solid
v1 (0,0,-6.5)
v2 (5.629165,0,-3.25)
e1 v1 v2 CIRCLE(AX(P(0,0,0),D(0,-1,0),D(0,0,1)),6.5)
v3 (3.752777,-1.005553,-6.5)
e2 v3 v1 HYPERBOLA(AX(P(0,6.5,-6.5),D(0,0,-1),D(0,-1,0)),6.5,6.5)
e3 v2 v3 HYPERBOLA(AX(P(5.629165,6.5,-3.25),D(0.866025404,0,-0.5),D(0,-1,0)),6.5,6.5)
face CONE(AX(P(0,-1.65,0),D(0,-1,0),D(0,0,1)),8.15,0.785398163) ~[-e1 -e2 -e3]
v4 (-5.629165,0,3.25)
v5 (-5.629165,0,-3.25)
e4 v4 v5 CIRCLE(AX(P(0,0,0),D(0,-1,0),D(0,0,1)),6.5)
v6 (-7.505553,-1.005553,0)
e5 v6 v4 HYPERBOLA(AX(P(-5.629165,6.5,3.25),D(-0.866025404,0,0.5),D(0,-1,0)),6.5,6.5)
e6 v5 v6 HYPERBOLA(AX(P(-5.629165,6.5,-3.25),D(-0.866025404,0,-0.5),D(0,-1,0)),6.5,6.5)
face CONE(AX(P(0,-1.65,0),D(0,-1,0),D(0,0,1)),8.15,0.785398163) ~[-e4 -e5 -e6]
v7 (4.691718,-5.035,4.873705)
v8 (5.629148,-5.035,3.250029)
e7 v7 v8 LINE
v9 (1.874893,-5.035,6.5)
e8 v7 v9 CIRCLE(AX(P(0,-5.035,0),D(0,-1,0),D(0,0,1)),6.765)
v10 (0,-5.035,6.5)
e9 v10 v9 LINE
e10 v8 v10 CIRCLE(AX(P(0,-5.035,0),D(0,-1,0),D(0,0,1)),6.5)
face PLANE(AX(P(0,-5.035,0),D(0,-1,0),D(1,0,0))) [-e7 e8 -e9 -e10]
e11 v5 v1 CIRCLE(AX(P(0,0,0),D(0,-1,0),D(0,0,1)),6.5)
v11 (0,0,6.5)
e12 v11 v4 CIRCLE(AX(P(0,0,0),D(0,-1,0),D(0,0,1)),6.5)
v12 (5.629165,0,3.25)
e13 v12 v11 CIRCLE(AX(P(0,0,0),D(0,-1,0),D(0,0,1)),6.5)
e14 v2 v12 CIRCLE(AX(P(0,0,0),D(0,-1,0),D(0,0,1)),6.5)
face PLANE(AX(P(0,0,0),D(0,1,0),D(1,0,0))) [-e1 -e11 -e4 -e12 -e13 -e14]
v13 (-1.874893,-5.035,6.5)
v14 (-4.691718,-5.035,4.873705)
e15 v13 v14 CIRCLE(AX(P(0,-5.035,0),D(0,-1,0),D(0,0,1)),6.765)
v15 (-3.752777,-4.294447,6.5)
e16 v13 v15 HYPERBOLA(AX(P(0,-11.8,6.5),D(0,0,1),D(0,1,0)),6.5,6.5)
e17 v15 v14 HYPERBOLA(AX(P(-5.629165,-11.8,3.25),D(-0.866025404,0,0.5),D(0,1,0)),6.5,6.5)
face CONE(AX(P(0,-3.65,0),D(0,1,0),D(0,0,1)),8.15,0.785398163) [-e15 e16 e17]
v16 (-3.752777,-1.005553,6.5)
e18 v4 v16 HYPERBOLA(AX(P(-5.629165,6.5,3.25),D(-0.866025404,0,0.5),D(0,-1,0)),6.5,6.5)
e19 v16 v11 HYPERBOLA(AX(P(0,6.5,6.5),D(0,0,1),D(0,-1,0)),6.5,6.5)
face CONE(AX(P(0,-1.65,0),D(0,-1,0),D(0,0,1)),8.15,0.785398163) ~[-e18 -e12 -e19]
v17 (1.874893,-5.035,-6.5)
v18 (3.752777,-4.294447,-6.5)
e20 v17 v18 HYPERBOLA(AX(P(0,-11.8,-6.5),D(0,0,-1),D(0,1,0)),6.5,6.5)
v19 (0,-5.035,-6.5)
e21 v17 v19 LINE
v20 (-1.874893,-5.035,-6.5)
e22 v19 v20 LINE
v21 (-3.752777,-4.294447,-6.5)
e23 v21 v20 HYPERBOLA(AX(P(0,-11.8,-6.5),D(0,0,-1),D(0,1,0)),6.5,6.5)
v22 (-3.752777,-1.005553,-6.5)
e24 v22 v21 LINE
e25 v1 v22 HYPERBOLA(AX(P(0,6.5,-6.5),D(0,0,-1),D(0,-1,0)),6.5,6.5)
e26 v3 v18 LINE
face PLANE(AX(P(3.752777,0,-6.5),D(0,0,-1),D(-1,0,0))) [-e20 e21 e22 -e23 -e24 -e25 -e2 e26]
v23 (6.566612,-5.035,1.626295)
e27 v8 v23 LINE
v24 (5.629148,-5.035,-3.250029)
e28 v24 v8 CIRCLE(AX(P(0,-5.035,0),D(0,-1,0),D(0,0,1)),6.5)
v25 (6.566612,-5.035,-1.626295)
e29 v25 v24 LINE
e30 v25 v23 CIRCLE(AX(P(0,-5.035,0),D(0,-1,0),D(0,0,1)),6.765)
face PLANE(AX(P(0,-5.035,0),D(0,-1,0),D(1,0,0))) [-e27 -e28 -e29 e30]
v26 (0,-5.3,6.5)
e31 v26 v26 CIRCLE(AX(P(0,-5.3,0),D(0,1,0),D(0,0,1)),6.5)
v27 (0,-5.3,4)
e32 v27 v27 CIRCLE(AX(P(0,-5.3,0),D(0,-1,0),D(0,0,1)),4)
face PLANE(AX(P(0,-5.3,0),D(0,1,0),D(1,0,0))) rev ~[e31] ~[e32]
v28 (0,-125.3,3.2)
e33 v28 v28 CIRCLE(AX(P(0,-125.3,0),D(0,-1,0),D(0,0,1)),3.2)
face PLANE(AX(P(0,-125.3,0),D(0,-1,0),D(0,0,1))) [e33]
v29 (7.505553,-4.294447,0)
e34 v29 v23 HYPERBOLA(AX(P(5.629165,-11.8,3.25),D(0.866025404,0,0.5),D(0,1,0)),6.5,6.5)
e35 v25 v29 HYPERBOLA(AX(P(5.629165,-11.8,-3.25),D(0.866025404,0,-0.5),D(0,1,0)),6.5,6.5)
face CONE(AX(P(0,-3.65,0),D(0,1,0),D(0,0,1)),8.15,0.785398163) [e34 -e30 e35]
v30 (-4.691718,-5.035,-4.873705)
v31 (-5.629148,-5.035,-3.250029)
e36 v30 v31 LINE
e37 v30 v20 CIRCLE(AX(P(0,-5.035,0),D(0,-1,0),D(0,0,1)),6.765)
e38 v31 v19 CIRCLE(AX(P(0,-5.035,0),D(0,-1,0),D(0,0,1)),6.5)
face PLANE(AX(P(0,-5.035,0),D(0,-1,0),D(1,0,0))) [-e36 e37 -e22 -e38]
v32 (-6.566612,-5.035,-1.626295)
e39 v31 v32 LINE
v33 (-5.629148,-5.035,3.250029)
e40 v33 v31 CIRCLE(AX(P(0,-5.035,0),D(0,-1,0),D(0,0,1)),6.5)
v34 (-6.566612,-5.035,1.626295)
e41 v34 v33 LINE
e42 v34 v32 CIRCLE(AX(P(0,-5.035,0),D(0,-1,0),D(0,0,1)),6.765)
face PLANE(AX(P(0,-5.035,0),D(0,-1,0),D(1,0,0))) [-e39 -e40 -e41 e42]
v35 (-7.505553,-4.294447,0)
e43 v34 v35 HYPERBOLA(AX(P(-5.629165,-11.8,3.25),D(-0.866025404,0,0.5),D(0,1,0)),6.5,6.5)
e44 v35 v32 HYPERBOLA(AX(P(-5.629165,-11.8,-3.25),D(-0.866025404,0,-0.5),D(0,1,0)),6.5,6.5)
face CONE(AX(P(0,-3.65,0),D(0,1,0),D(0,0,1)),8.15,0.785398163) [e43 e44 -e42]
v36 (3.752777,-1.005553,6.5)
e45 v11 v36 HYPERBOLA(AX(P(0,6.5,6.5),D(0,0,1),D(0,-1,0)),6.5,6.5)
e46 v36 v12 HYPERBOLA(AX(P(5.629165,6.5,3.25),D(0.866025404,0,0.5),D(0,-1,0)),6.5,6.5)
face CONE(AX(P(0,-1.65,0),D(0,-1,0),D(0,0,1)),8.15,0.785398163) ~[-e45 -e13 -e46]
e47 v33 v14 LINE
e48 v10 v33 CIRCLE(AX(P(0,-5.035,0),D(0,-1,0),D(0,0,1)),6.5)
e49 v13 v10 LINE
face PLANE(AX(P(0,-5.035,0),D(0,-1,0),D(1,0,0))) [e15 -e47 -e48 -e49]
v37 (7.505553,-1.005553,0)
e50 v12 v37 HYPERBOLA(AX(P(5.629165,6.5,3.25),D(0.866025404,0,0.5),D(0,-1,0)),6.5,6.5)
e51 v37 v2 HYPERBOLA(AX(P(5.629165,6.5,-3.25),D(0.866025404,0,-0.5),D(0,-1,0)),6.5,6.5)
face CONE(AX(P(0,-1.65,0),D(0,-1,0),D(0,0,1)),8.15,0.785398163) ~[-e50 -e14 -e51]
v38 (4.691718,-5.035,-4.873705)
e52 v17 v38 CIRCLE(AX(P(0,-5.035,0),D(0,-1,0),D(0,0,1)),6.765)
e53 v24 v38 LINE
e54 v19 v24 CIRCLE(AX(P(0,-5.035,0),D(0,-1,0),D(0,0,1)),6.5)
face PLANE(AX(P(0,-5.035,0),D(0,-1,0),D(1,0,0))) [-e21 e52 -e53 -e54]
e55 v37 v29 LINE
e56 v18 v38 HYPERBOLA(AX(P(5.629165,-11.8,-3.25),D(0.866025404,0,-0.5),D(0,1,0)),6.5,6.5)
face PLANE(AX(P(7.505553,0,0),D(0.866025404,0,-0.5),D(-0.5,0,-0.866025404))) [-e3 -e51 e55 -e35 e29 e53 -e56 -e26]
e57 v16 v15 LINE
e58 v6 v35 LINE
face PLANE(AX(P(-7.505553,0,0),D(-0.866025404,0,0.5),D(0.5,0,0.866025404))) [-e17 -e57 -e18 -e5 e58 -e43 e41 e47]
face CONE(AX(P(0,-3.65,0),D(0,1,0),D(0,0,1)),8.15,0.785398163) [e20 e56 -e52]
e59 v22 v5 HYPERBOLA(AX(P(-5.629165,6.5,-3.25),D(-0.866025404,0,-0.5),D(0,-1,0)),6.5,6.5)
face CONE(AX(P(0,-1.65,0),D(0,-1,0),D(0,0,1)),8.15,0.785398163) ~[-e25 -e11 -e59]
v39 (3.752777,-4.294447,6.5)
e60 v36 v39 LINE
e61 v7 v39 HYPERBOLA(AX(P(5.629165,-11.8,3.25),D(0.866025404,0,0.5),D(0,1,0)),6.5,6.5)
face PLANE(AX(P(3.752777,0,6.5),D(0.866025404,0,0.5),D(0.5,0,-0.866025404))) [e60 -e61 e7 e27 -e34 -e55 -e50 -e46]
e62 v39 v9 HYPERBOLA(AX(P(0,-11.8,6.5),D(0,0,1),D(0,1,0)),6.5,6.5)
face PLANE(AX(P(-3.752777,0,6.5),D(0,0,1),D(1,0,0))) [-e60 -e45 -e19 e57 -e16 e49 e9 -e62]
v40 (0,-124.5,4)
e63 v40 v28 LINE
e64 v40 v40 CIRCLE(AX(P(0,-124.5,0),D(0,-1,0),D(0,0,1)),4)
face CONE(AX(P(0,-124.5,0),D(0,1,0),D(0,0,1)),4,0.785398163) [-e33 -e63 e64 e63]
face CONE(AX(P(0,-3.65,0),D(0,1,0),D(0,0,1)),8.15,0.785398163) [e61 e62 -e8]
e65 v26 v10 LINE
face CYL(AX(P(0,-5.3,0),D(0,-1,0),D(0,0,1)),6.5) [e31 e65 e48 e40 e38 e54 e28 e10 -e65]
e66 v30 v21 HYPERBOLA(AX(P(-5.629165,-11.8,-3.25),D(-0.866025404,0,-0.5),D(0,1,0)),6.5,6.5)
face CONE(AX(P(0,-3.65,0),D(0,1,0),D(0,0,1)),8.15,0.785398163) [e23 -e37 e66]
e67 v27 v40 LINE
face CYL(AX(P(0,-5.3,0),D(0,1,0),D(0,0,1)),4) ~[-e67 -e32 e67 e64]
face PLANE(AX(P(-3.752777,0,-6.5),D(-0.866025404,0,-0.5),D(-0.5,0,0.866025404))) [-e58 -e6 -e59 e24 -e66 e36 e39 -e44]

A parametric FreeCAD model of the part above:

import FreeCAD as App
import Part
import Sketcher

V = App.Vector
Q = App.Units.Quantity


def edges_at(feature, points):
    """Names of the edges that pass closest to the given points."""
    edges = feature.Shape.Edges
    near = lambda p: min(range(len(edges)), key=lambda i: edges[i].distToShape(Part.Vertex(*p))[0])
    return sorted({f"Edge{near(p) + 1}" for p in points})

doc = App.newDocument("Part")
body = doc.addObject("PartDesign::Body", "Body")

# Sketch on XZ plane
sketch1 = body.newObject("Sketcher::SketchObject", "Sketch")
sketch1.AttachmentSupport = (doc.getObject("XZ_Plane"), [""])
sketch1.MapMode = "FlatFace"
sketch1.addGeometry(Part.LineSegment(V(8, 0, 0), V(4, -6, 0)), False)
sketch1.addGeometry(Part.LineSegment(V(4, -6, 0), V(-4, -6, 0)), False)
sketch1.addGeometry(Part.LineSegment(V(-4, -6, 0), V(-8, 0, 0)), False)
sketch1.addGeometry(Part.LineSegment(V(-8, 0, 0), V(-4, 6, 0)), False)
sketch1.addGeometry(Part.LineSegment(V(-4, 6, 0), V(4, 6, 0)), False)
sketch1.addGeometry(Part.LineSegment(V(4, 6, 0), V(8, 0, 0)), False)
sketch1.addConstraint(Sketcher.Constraint("Coincident", 0, 2, 1, 1))
sketch1.addConstraint(Sketcher.Constraint("Coincident", 1, 2, 2, 1))
sketch1.addConstraint(Sketcher.Constraint("Coincident", 2, 2, 3, 1))
sketch1.addConstraint(Sketcher.Constraint("Coincident", 3, 2, 4, 1))
sketch1.addConstraint(Sketcher.Constraint("Coincident", 4, 2, 5, 1))
sketch1.addConstraint(Sketcher.Constraint("Coincident", 5, 2, 0, 1))
sketch1.addConstraint(Sketcher.Constraint("Horizontal", 1))
sketch1.addConstraint(Sketcher.Constraint("Horizontal", 4))
sketch1.addConstraint(Sketcher.Constraint("Symmetric", 0, 2, 3, 2, -1, 1))
sketch1.addConstraint(Sketcher.Constraint("Symmetric", 2, 2, 5, 2, -1, 1))
sketch1.addConstraint(Sketcher.Constraint("PointOnObject", 2, 2, -1))
sketch1.addConstraint(Sketcher.Constraint("Parallel", 2, 5))
sketch1.addConstraint(Sketcher.Constraint("Vertical", 1, 2, 3, 2))
sketch1.addConstraint(Sketcher.Constraint("Angle", 0, Q("-120 deg")))
sketch1.addConstraint(Sketcher.Constraint("DistanceY", 1, 2, 3, 2, 13.0))
sketch1.addConstraint(Sketcher.Constraint("DistanceX", 1, 2, 1, 1, 7.505554))
pad1 = body.newObject("PartDesign::Pad", "Pad")
pad1.Profile = sketch1
pad1.Length = 5.3

# Sketch on YZ plane
sketch2 = body.newObject("Sketcher::SketchObject", "Sketch001")
sketch2.AttachmentSupport = (doc.getObject("YZ_Plane"), [""])
sketch2.MapMode = "FlatFace"
sketch2.addGeometry(Part.LineSegment(V(0, 6.5, 0), V(0, 8.2, 0)), False)
sketch2.addGeometry(Part.LineSegment(V(0, 8.2, 0), V(-1.6, 8.2, 0)), False)
sketch2.addGeometry(Part.LineSegment(V(-1.6, 8.2, 0), V(0, 6.5, 0)), False)
sketch2.addGeometry(Part.LineSegment(V(-5.3, 6.5, 0), V(-3.6, 8.2, 0)), False)
sketch2.addGeometry(Part.LineSegment(V(-3.6, 8.2, 0), V(-5.3, 8.2, 0)), False)
sketch2.addGeometry(Part.LineSegment(V(-5.3, 8.2, 0), V(-5.3, 6.5, 0)), False)
sketch2.addConstraint(Sketcher.Constraint("Coincident", 0, 2, 1, 1))
sketch2.addConstraint(Sketcher.Constraint("Coincident", 1, 2, 2, 1))
sketch2.addConstraint(Sketcher.Constraint("Coincident", 2, 2, 0, 1))
sketch2.addConstraint(Sketcher.Constraint("Coincident", 3, 2, 4, 1))
sketch2.addConstraint(Sketcher.Constraint("Coincident", 4, 2, 5, 1))
sketch2.addConstraint(Sketcher.Constraint("Coincident", 5, 2, 3, 1))
sketch2.addConstraint(Sketcher.Constraint("Vertical", 0))
sketch2.addConstraint(Sketcher.Constraint("Horizontal", 1))
sketch2.addConstraint(Sketcher.Constraint("Horizontal", 4))
sketch2.addConstraint(Sketcher.Constraint("Vertical", 5))
sketch2.addConstraint(Sketcher.Constraint("PointOnObject", 0, 2, -2))
sketch2.addConstraint(Sketcher.Constraint("Perpendicular", 2, 3))
sketch2.addConstraint(Sketcher.Constraint("Horizontal", 1, 2, 3, 2))
sketch2.addConstraint(Sketcher.Constraint("Horizontal", 2, 2, 5, 2))
sketch2.addConstraint(Sketcher.Constraint("Equal", 1, 4))
sketch2.addConstraint(Sketcher.Constraint("DistanceX", 3, 2, 1, 2, 2.0))
sketch2.addConstraint(Sketcher.Constraint("DistanceX", 1, 2, 1, 1, 1.65))
sketch2.addConstraint(Sketcher.Constraint("DistanceY", -1, 1, 2, 2, 6.5))
groove = body.newObject("PartDesign::Groove", "Groove")
groove.Profile = sketch2
groove.ReferenceAxis = (sketch2, ["H_Axis"])
groove.Angle = 360

# Sketch on XZ plane
sketch3 = body.newObject("Sketcher::SketchObject", "Sketch002")
sketch3.AttachmentSupport = (doc.getObject("XZ_Plane"), [""])
sketch3.MapMode = "FlatFace"
sketch3.AttachmentOffset = App.Placement(V(0, 0, 5.3), App.Rotation())
sketch3.addGeometry(Part.LineSegment(V(-11, 10, 0), V(-11, -10, 0)), False)
sketch3.addGeometry(Part.LineSegment(V(-11, -10, 0), V(11, -10, 0)), False)
sketch3.addGeometry(Part.LineSegment(V(11, -10, 0), V(11, 10, 0)), False)
sketch3.addGeometry(Part.LineSegment(V(11, 10, 0), V(-11, 10, 0)), False)
sketch3.addGeometry(Part.Circle(V(0, 0, 0), V(0, 0, 1), 6), False)
sketch3.addConstraint(Sketcher.Constraint("Coincident", 0, 2, 1, 1))
sketch3.addConstraint(Sketcher.Constraint("Coincident", 1, 2, 2, 1))
sketch3.addConstraint(Sketcher.Constraint("Coincident", 2, 2, 3, 1))
sketch3.addConstraint(Sketcher.Constraint("Coincident", 3, 2, 0, 1))
sketch3.addConstraint(Sketcher.Constraint("Vertical", 0))
sketch3.addConstraint(Sketcher.Constraint("Horizontal", 1))
sketch3.addConstraint(Sketcher.Constraint("Vertical", 2))
sketch3.addConstraint(Sketcher.Constraint("Horizontal", 3))
sketch3.addConstraint(Sketcher.Constraint("Coincident", 4, 3, -1, 1))
sketch3.addConstraint(Sketcher.Constraint("Symmetric", 0, 2, 2, 2, -1, 1))
sketch3.addConstraint(Sketcher.Constraint("Diameter", 4, 13.0))
sketch3.addConstraint(Sketcher.Constraint("DistanceY", 0, 2, 0, 1, 19.11))
sketch3.addConstraint(Sketcher.Constraint("DistanceX", 1, 1, 1, 2, 21.122))
pocket1 = body.newObject("PartDesign::Pocket", "Pocket")
pocket1.Profile = sketch3
pocket1.Length = 0.265

# Sketch on XZ plane
sketch4 = body.newObject("Sketcher::SketchObject", "Sketch003")
sketch4.AttachmentSupport = (doc.getObject("XZ_Plane"), [""])
sketch4.MapMode = "FlatFace"
sketch4.AttachmentOffset = App.Placement(V(0, 0, 5.3), App.Rotation())
sketch4.addGeometry(Part.Circle(V(0, 0, 0), V(0, 0, 1), 4), False)
sketch4.addConstraint(Sketcher.Constraint("Coincident", 0, 3, -1, 1))
sketch4.addConstraint(Sketcher.Constraint("Diameter", 0, 8.0))
pad2 = body.newObject("PartDesign::Pad", "Pad001")
pad2.Profile = sketch4
pad2.Length = 120
doc.recompute()

chamfer = body.newObject("PartDesign::Chamfer", "Chamfer")
chamfer.Base = (pad2, edges_at(pad2, [(0, -125.3, -4)]))
chamfer.Size = 0.8

doc.recompute()
